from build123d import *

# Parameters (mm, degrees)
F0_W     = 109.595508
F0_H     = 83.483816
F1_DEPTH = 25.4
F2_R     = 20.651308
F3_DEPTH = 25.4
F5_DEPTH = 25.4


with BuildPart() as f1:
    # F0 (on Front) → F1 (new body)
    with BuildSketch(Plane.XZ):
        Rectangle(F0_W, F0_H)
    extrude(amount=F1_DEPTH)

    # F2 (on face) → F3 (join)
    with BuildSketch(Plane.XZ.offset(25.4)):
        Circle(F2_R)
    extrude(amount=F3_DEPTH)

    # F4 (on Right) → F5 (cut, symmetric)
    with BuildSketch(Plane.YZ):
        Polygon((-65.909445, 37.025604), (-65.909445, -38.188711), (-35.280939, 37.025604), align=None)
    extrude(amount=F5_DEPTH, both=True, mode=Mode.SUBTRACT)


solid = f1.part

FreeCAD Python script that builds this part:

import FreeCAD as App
import Part
import Sketcher

V = App.Vector
Q = App.Units.Quantity


def add_polygon(sketch, points):
    """Adds a closed chain of lines whose ends are joined by coincident constraints."""
    first, n = sketch.GeometryCount, len(points)
    for a, b in zip(points, points[1:] + points[:1]):
        sketch.addGeometry(Part.LineSegment(App.Vector(*a, 0), App.Vector(*b, 0)), False)
    for i in range(n):
        sketch.addConstraint(Sketcher.Constraint("Coincident", first + i, 2, first + (i + 1) % n, 1))

doc = App.newDocument("Part")
body = doc.addObject("PartDesign::Body", "Body")

# Sketch on XZ plane
sketch1 = body.newObject("Sketcher::SketchObject", "Sketch")
sketch1.AttachmentSupport = (doc.getObject("XZ_Plane"), [""])
sketch1.MapMode = "FlatFace"
add_polygon(sketch1, [(-55, 42), (-55, -42), (55, -42), (55, 42)])  # lines 0-3
sketch1.addConstraint([
    Sketcher.Constraint("Vertical", 0),
    Sketcher.Constraint("Horizontal", 1),
    Sketcher.Constraint("Vertical", 2),
    Sketcher.Constraint("Horizontal", 3),
    Sketcher.Constraint("Symmetric", 0, 2, 2, 2, -1, 1),
    Sketcher.Constraint("DistanceX", 1, 1, 1, 2, 109.595508),
    Sketcher.Constraint("DistanceY", 0, 2, 0, 1, 83.483816),
])
pad1 = body.newObject("PartDesign::Pad", "Pad")
pad1.Profile = sketch1
pad1.Length = Q("1 in")

# Sketch on XZ plane
sketch2 = body.newObject("Sketcher::SketchObject", "Sketch001")
sketch2.AttachmentSupport = (doc.getObject("XZ_Plane"), [""])
sketch2.MapMode = "FlatFace"
sketch2.AttachmentOffset = App.Placement(V(0, 0, 1 * 25.4), App.Rotation())
sketch2.addGeometry(Part.Circle(V(0, 0, 0), V(0, 0, 1), 21), False)
sketch2.addConstraint([
    Sketcher.Constraint("Coincident", 0, 3, -1, 1),
    Sketcher.Constraint("Diameter", 0, 41.302616),
])
pad2 = body.newObject("PartDesign::Pad", "Pad001")
pad2.Profile = sketch2
pad2.Length = Q("1 in")

# Sketch on YZ plane
sketch3 = body.newObject("Sketcher::SketchObject", "Sketch002")
sketch3.AttachmentSupport = (doc.getObject("YZ_Plane"), [""])
sketch3.MapMode = "FlatFace"
add_polygon(sketch3, [(-66, 37), (-66, -38), (-35, 37)])  # lines 0-2
sketch3.addConstraint([
    Sketcher.Constraint("Vertical", 0),
    Sketcher.Constraint("Horizontal", 2),
    Sketcher.Constraint("DistanceX", 2, 2, 2, 1, 30.628506),
    Sketcher.Constraint("DistanceY", 0, 2, 0, 1, 75.214315),
    Sketcher.Constraint("DistanceY", 0, 2, -1, 1, 38.188711),
    Sketcher.Constraint("DistanceX", 1, 2, -1, 1, 35.280939),
])
pocket1 = body.newObject("PartDesign::Pocket", "Pocket")
pocket1.Profile = sketch3
pocket1.Length = Q("2 in")
pocket1.Midplane = True

doc.recompute()
